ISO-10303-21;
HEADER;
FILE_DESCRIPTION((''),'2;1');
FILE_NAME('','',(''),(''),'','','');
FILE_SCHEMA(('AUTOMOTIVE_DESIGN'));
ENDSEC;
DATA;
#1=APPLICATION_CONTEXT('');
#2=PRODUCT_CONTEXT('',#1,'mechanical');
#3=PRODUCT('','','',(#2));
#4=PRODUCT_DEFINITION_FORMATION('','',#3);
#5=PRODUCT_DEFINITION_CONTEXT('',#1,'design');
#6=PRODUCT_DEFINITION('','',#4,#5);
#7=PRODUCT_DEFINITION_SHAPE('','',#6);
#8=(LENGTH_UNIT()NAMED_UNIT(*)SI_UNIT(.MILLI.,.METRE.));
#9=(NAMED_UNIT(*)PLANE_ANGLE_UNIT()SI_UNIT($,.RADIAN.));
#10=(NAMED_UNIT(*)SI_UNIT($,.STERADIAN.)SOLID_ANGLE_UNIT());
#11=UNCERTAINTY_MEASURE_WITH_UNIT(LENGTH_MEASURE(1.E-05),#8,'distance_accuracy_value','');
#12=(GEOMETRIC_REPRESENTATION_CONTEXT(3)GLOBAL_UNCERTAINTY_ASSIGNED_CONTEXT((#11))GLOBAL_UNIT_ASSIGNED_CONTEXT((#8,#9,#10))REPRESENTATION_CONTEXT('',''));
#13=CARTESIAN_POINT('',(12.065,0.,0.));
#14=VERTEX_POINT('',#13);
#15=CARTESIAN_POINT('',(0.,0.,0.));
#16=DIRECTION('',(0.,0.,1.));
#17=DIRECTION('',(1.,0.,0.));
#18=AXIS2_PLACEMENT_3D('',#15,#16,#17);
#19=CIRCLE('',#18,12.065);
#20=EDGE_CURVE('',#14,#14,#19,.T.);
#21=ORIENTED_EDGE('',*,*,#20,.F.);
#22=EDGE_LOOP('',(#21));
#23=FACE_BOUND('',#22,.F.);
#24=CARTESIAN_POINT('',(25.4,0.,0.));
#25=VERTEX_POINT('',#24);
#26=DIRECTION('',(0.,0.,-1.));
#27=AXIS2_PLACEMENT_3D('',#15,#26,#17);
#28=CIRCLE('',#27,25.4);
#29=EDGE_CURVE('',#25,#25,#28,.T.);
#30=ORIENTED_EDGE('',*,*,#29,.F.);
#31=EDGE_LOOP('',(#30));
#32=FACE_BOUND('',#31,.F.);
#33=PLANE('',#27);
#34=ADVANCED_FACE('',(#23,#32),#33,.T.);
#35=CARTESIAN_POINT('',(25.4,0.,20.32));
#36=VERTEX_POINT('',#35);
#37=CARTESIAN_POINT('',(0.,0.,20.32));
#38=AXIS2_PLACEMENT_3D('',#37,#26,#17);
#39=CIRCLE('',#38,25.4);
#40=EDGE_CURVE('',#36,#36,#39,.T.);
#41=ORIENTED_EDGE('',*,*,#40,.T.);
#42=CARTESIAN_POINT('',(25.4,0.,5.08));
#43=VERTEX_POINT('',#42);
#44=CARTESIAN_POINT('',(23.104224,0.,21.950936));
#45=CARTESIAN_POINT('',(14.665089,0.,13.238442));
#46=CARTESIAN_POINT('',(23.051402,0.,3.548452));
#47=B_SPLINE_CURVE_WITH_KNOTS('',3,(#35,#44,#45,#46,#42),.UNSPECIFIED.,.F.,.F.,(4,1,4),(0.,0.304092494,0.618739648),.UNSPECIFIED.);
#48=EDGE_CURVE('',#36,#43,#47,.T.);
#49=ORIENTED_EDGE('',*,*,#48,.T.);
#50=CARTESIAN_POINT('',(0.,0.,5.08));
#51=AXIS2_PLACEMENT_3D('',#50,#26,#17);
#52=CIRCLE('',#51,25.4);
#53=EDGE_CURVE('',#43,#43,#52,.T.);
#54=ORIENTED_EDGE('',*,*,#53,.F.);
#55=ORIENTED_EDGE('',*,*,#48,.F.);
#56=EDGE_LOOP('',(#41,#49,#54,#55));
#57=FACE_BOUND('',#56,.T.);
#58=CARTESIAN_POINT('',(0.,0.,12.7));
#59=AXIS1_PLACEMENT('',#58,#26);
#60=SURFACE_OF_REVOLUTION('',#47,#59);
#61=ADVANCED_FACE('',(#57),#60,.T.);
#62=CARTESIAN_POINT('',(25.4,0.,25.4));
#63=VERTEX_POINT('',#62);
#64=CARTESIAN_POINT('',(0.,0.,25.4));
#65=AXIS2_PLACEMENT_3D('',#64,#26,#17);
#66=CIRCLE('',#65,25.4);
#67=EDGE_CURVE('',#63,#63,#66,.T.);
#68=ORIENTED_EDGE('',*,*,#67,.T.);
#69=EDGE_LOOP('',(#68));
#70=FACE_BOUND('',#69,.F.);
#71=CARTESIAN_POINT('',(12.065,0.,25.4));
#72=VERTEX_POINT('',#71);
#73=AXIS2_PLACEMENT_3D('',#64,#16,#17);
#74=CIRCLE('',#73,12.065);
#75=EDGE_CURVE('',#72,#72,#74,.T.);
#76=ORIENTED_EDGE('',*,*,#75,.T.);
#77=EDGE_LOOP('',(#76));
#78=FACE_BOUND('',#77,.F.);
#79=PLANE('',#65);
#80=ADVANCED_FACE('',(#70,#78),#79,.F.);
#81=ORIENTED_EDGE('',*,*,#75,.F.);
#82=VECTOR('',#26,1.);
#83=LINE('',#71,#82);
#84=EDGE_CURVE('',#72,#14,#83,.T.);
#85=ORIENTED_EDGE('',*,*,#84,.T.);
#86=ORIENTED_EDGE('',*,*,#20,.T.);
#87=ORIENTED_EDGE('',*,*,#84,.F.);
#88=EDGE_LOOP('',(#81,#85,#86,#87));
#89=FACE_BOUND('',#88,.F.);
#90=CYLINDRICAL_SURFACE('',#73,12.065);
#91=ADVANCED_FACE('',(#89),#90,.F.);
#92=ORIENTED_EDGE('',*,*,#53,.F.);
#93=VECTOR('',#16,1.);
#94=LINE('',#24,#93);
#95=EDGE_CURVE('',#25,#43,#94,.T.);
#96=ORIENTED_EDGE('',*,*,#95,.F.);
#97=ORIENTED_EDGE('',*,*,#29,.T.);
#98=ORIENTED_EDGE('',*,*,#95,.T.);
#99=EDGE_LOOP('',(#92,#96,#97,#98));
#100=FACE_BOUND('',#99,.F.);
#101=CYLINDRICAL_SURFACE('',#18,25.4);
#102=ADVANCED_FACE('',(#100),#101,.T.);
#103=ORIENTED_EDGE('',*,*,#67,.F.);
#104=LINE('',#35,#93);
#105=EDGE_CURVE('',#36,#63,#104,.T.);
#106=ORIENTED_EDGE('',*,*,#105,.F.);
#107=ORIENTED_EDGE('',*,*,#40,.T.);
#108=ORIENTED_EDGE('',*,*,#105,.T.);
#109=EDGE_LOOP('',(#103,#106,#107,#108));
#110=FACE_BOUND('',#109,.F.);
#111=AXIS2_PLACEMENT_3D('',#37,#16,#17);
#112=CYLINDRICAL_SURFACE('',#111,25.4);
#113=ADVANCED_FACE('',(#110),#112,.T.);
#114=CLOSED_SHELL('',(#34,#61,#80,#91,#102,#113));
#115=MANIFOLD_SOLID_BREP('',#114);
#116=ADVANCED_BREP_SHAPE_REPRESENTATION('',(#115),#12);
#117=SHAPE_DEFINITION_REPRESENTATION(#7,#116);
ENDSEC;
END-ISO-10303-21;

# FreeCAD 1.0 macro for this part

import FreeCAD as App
import Part
import Sketcher
from FreeCAD import Vector
Q = App.Units.Quantity

doc = App.newDocument("Part")
body = doc.addObject("PartDesign::Body", "Body")

# Sketch on XZ plane
sketch1 = body.newObject("Sketcher::SketchObject", "Sketch")
sketch1.AttachmentSupport = (doc.getObject("XZ_Plane"), [""])
sketch1.MapMode = "FlatFace"
sketch1.addGeometry([
    Part.LineSegment(Vector(25.4, 25.4, 0), Vector(0, 25.4, 0)),  # 0
    Part.LineSegment(Vector(0, 25.4, 0), Vector(0, 0, 0)),  # 1
    Part.LineSegment(Vector(0, 0, 0), Vector(25.4, 0, 0)),  # 2
    Part.LineSegment(Vector(25.4, 0, 0), Vector(25.4, 5.08, 0)),  # 3
    Part.BSplineCurve([Vector(25.4, 20.32, 0), Vector(23.104224, 21.950936, 0), Vector(14.665089, 13.238442, 0), Vector(23.051402, 3.548452, 0), Vector(25.4, 5.08, 0)], [4, 1, 4], [0, 0.304092494, 0.618739648], False, 3, [1, 1, 1, 1, 1], False),  # 4
    Part.LineSegment(Vector(25.4, 20.32, 0), Vector(25.4, 25.4, 0)),  # 5
], False)
sketch1.addConstraint([
    Sketcher.Constraint("Block", 4),
    Sketcher.Constraint("Coincident", 0, 2, 1, 1),
    Sketcher.Constraint("Coincident", 1, 2, 2, 1),
    Sketcher.Constraint("Coincident", 2, 2, 3, 1),
    Sketcher.Constraint("Coincident", 3, 2, 4, 2),
    Sketcher.Constraint("Coincident", 4, 1, 5, 1),
    Sketcher.Constraint("Coincident", 5, 2, 0, 1),
    Sketcher.Constraint("Horizontal", 0),
    Sketcher.Constraint("Vertical", 1),
    Sketcher.Constraint("Horizontal", 2),
    Sketcher.Constraint("Vertical", 3),
    Sketcher.Constraint("Vertical", 5),
    Sketcher.Constraint("Coincident", 1, 2, -1, 1),
    Sketcher.Constraint("Equal", 2, 1),
])
revolution = body.newObject("PartDesign::Revolution", "Revolution")
revolution.Profile = sketch1
revolution.ReferenceAxis = (sketch1, ["V_Axis"])
revolution.Angle = 360

# Sketch on XY plane
sketch2 = body.newObject("Sketcher::SketchObject", "Sketch001")
sketch2.AttachmentSupport = (doc.getObject("XY_Plane"), [""])
sketch2.MapMode = "FlatFace"
sketch2.AttachmentOffset = App.Placement(Vector(0, 0, 1 * 25.4), App.Rotation())
sketch2.addGeometry(Part.Circle(Vector(0, 0, 0), Vector(0, 0, 1), 12), False)
sketch2.addConstraint([
    Sketcher.Constraint("Coincident", 0, 3, -1, 1),
    Sketcher.Constraint("Diameter", 0, Q("0.95 in")),
])
pocket1 = body.newObject("PartDesign::Pocket", "Pocket")
pocket1.Profile = sketch2
pocket1.Length = Q("2.43 in")

doc.recompute()
